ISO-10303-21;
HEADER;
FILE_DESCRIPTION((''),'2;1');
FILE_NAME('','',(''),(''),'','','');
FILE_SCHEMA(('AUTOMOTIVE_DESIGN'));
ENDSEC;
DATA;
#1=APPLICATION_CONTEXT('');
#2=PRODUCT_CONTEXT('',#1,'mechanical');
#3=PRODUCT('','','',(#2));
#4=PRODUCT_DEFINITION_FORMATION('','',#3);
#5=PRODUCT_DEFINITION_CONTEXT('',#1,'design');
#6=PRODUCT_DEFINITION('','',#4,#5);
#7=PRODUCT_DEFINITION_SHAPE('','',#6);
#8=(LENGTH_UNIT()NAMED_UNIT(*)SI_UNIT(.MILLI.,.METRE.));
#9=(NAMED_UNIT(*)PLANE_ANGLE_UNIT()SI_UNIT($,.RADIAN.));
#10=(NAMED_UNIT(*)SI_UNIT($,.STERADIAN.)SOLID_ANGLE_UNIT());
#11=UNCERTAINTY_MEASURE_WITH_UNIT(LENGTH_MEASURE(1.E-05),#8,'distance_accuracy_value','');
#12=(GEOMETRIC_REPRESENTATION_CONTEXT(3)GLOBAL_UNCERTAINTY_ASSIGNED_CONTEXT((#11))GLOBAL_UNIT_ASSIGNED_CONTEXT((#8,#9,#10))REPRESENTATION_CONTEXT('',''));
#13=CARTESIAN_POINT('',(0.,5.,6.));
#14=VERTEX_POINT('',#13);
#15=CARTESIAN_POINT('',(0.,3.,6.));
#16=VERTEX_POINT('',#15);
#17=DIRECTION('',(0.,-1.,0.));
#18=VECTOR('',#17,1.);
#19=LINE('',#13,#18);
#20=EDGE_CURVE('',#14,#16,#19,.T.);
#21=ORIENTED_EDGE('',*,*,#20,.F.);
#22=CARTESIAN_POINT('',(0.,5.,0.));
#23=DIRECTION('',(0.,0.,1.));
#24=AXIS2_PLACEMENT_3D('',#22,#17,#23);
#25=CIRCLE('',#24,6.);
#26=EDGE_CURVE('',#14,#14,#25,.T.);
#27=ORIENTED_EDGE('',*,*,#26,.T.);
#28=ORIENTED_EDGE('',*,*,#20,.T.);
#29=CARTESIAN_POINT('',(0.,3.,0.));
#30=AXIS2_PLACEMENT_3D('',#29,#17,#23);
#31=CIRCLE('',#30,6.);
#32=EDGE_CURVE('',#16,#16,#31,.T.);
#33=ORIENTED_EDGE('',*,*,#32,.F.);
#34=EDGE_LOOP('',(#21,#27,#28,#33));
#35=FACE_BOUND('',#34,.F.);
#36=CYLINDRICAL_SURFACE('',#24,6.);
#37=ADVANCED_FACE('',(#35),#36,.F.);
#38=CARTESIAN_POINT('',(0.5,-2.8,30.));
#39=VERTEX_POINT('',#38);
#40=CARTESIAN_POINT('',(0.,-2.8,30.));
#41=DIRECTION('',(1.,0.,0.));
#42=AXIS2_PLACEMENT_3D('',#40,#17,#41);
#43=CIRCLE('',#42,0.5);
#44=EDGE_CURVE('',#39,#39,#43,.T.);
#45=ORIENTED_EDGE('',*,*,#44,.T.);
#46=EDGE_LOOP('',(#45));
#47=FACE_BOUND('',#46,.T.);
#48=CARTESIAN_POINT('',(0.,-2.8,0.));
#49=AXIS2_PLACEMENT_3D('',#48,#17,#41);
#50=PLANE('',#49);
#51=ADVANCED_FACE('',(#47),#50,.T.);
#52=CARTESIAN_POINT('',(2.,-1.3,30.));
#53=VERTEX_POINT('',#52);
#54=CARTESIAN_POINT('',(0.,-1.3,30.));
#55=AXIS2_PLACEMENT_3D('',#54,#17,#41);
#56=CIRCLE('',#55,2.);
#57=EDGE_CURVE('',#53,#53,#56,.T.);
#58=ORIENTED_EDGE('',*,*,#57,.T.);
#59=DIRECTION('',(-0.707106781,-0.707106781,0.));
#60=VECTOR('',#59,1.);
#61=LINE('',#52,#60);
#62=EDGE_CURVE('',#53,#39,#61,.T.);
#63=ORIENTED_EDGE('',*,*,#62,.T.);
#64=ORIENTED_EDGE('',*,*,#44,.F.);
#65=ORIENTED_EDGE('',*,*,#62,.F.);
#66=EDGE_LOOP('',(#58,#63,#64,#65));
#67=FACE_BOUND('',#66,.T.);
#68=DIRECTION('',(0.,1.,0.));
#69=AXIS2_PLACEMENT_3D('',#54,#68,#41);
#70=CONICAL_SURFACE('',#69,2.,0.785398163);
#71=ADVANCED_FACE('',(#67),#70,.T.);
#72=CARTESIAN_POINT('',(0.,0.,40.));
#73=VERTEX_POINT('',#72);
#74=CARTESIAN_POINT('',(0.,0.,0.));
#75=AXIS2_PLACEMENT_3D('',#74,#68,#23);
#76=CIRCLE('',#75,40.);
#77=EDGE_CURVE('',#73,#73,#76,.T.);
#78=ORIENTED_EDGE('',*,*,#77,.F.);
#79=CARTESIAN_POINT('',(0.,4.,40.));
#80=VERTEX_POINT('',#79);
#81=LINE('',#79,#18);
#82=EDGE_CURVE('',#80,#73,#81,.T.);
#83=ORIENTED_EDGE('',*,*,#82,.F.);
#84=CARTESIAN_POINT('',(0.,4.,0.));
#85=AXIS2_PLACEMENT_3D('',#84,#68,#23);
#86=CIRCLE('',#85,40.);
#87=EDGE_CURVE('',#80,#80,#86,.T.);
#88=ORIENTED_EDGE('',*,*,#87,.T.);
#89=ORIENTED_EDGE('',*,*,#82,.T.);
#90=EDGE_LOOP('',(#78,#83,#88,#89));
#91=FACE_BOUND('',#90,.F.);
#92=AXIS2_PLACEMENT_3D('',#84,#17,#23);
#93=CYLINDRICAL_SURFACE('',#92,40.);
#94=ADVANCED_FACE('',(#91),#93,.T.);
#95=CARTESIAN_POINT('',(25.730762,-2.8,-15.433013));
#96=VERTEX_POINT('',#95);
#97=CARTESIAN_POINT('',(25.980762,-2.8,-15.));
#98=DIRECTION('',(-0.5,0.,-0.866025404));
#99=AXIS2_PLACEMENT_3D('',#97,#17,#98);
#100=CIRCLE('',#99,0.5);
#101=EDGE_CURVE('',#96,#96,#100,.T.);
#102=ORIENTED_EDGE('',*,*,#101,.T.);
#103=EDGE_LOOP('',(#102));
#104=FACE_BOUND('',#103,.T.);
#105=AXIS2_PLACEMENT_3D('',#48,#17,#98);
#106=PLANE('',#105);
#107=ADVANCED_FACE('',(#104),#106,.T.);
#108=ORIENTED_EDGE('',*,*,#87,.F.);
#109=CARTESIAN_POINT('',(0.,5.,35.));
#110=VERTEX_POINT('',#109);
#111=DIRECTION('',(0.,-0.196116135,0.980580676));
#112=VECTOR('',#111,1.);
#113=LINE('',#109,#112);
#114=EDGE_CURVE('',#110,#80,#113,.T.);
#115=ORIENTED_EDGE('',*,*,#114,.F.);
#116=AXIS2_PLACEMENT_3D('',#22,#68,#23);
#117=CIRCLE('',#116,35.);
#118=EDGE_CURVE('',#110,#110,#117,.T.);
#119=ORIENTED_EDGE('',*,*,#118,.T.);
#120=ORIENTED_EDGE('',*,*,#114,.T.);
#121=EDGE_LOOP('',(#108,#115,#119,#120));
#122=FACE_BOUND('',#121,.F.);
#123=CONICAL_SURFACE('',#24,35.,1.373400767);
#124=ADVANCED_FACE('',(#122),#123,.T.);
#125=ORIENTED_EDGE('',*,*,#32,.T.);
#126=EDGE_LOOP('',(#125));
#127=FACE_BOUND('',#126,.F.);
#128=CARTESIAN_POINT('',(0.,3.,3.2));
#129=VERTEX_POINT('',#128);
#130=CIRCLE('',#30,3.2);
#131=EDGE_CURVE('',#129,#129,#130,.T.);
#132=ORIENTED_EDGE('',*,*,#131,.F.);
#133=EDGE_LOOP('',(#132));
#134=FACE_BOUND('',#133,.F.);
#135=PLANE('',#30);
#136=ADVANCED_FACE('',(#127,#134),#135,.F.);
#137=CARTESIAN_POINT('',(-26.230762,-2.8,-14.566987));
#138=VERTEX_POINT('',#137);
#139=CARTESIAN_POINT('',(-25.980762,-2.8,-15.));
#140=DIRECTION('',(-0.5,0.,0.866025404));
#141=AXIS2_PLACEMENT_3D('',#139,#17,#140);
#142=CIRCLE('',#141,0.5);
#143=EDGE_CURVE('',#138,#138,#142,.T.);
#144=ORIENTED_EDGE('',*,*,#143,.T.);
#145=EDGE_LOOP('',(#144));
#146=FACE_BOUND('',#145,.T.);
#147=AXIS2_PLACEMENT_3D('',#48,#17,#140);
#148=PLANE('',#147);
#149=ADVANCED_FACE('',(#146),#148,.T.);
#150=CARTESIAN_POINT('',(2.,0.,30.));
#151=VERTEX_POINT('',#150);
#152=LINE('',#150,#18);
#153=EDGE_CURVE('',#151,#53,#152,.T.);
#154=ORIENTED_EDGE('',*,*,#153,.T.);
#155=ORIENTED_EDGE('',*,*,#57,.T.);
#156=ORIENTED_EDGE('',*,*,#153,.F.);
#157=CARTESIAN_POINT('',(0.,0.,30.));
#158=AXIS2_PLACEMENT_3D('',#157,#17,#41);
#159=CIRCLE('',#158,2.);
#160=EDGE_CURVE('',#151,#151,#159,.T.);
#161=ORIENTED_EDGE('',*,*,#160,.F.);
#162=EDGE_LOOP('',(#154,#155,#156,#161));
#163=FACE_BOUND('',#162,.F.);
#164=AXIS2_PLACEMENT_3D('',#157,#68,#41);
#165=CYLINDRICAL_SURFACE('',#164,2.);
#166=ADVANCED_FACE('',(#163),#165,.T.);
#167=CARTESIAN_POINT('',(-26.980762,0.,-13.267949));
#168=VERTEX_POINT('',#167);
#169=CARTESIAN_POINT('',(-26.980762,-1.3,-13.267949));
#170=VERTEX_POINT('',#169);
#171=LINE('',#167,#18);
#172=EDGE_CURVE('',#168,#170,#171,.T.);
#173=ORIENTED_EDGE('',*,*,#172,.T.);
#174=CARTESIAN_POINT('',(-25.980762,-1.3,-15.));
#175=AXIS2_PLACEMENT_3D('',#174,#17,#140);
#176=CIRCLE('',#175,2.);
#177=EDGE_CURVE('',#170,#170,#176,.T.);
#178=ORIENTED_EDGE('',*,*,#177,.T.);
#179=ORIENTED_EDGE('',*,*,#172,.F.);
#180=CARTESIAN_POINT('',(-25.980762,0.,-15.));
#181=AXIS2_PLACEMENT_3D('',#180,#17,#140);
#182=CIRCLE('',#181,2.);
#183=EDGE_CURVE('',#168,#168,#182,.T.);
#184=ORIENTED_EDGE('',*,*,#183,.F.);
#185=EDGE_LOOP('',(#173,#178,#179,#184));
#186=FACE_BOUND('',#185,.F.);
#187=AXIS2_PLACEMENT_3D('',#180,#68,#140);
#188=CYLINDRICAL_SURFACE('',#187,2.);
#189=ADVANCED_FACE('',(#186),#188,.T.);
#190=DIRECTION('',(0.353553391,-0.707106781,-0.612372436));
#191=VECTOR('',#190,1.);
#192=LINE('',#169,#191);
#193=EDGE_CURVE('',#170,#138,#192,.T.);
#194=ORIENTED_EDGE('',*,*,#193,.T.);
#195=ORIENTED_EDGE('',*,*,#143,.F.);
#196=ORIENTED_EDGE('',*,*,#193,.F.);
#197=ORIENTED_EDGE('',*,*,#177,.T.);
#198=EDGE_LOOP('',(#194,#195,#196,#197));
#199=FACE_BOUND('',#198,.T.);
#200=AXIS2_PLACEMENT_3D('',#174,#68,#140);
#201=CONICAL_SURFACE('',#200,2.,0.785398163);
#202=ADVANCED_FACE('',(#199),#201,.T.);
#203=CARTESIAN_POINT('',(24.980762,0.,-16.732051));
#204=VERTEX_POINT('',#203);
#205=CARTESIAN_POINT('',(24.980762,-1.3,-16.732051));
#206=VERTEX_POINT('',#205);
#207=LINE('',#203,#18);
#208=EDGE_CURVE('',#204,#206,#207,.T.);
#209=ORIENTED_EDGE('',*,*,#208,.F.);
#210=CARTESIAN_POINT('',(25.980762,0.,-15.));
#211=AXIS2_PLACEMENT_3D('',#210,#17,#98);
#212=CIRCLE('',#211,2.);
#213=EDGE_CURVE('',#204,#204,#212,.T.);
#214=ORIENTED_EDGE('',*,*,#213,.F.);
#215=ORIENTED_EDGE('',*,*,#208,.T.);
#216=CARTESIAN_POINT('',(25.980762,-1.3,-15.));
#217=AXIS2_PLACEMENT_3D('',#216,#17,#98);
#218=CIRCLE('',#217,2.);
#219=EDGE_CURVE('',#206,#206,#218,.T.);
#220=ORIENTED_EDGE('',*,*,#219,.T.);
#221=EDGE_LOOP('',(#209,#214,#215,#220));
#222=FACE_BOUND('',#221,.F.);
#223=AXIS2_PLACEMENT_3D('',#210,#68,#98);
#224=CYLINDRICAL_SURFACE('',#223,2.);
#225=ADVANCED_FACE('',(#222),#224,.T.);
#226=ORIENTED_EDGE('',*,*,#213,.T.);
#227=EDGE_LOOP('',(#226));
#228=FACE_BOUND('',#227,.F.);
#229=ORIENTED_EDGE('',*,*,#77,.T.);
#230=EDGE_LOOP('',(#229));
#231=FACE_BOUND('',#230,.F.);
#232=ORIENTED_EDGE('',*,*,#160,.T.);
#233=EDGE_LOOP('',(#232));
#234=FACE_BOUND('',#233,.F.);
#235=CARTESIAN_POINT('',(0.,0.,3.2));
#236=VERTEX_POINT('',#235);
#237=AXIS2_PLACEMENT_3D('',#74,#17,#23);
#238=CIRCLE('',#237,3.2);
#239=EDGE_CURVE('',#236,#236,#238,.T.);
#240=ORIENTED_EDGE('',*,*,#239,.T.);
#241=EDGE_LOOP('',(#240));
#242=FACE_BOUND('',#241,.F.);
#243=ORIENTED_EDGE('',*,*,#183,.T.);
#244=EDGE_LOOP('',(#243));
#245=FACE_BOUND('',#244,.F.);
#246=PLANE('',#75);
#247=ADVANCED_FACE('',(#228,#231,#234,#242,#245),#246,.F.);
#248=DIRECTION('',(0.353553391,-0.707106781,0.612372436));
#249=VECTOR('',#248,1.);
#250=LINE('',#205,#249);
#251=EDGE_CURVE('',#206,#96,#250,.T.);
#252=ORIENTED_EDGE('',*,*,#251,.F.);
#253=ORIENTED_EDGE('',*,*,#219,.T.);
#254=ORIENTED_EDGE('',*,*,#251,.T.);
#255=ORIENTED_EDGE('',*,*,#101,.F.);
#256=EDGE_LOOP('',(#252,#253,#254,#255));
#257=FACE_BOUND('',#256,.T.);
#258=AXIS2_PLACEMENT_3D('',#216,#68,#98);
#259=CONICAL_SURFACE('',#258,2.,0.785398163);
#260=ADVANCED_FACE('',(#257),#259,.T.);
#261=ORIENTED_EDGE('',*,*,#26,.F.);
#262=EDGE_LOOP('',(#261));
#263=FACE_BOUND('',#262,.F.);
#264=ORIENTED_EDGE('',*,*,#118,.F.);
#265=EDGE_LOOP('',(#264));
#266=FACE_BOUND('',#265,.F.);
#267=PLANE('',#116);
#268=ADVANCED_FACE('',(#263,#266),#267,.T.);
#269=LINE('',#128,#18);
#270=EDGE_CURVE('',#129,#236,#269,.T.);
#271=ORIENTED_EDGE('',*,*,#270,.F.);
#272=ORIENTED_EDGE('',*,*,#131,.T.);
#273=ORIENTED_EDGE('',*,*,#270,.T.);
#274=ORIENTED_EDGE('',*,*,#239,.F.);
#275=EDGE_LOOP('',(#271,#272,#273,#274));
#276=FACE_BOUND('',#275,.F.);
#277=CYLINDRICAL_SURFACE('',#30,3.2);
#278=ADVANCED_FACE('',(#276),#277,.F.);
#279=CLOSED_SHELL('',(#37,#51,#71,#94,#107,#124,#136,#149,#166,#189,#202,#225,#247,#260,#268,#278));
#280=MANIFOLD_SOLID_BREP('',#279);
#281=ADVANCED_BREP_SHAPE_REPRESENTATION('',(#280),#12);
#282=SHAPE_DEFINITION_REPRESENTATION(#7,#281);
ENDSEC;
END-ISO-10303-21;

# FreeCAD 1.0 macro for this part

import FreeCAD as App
import Part
import Sketcher

V = App.Vector
Q = App.Units.Quantity


def edges_at(feature, points):
    """Names of the edges that pass closest to the given points."""
    edges = feature.Shape.Edges
    near = lambda p: min(range(len(edges)), key=lambda i: edges[i].distToShape(Part.Vertex(*p))[0])
    return sorted({f"Edge{near(p) + 1}" for p in points})

doc = App.newDocument("Part")
body = doc.addObject("PartDesign::Body", "Body")

# Sketch on YZ plane
sketch1 = body.newObject("Sketcher::SketchObject", "Sketch")
sketch1.AttachmentSupport = (doc.getObject("YZ_Plane"), [""])
sketch1.MapMode = "FlatFace"
sketch1.addGeometry([
    Part.LineSegment(V(0, 40, 0), V(0, 0, 0)),  # 0
    Part.LineSegment(V(0, 0, 0), V(5, 0, 0)),  # 1
    Part.LineSegment(V(5, 0, 0), V(5, 35, 0)),  # 2
    Part.LineSegment(V(5, 35, 0), V(4, 40, 0)),  # 3
    Part.LineSegment(V(4, 40, 0), V(0, 40, 0)),  # 4
], False)
sketch1.addConstraint([
    Sketcher.Constraint("Coincident", 0, 2, 1, 1),
    Sketcher.Constraint("Coincident", 1, 2, 2, 1),
    Sketcher.Constraint("Coincident", 2, 2, 3, 1),
    Sketcher.Constraint("Coincident", 3, 2, 4, 1),
    Sketcher.Constraint("Coincident", 4, 2, 0, 1),
    Sketcher.Constraint("Vertical", 0),
    Sketcher.Constraint("Horizontal", 1),
    Sketcher.Constraint("Vertical", 2),
    Sketcher.Constraint("Horizontal", 4),
    Sketcher.Constraint("Coincident", 0, 2, -1, 1),
    Sketcher.Constraint("DistanceX", 1, 1, 1, 2, Q("5 mm")),
    Sketcher.Constraint("DistanceX", 4, 2, 4, 1, Q("4 mm")),
    Sketcher.Constraint("DistanceY", 2, 2, 3, 2, Q("5 mm")),
    Sketcher.Constraint("DistanceY", 0, 2, 0, 1, Q("40 mm")),
])
revolution = body.newObject("PartDesign::Revolution", "Revolution")
revolution.Profile = sketch1
revolution.ReferenceAxis = (sketch1, ["H_Axis"])
revolution.Angle = 360

# Sketch on XZ plane
sketch2 = body.newObject("Sketcher::SketchObject", "Sketch001")
sketch2.AttachmentSupport = (doc.getObject("XZ_Plane"), [""])
sketch2.MapMode = "FlatFace"
sketch2.AttachmentOffset = App.Placement(V(0, 0, -5), App.Rotation())
sketch2.addGeometry(Part.Circle(V(0, 0, 0), V(0, 0, 1), 3.2), False)
sketch2.addConstraint([
    Sketcher.Constraint("Coincident", 0, 3, -1, 1),
    Sketcher.Constraint("Diameter", 0, Q("6.4 mm")),
])
doc.recompute()
hole = body.newObject("PartDesign::Hole", "Hole")
hole.Profile = sketch2
hole.ThreadType = "None"
hole.Diameter = 6.4
hole.DepthType = "ThroughAll"
hole.HoleCutType = "Counterbore"
hole.HoleCutDiameter = 12
hole.HoleCutDepth = 2
hole.Reversed = True

# Sketch on XZ plane
sketch3 = body.newObject("Sketcher::SketchObject", "Sketch002")
sketch3.AttachmentSupport = (doc.getObject("XZ_Plane"), [""])
sketch3.MapMode = "FlatFace"
sketch3.addGeometry(Part.Circle(V(0, 30, 0), V(0, 0, 1), 2), False)
sketch3.addConstraint([
    Sketcher.Constraint("PointOnObject", 0, 3, -2),
    Sketcher.Constraint("Diameter", 0, Q("4 mm")),
    Sketcher.Constraint("DistanceY", -1, 1, 0, 3, Q("30 mm")),
])
pad1 = body.newObject("PartDesign::Pad", "Pad")
pad1.Profile = sketch3
pad1.Length = 2.8
doc.recompute()

chamfer = body.newObject("PartDesign::Chamfer", "Chamfer")
chamfer.Base = (pad1, edges_at(pad1, [(-2, -2.8, 30)]))
chamfer.Size = 1.5
doc.recompute()

polarpattern = body.newObject("PartDesign::PolarPattern", "PolarPattern")
polarpattern.Originals = [pad1, chamfer]
polarpattern.Axis = (doc.getObject("Y_Axis"), [""])
polarpattern.Angle = 360
polarpattern.Occurrences = 3
body.Tip = polarpattern

doc.recompute()
